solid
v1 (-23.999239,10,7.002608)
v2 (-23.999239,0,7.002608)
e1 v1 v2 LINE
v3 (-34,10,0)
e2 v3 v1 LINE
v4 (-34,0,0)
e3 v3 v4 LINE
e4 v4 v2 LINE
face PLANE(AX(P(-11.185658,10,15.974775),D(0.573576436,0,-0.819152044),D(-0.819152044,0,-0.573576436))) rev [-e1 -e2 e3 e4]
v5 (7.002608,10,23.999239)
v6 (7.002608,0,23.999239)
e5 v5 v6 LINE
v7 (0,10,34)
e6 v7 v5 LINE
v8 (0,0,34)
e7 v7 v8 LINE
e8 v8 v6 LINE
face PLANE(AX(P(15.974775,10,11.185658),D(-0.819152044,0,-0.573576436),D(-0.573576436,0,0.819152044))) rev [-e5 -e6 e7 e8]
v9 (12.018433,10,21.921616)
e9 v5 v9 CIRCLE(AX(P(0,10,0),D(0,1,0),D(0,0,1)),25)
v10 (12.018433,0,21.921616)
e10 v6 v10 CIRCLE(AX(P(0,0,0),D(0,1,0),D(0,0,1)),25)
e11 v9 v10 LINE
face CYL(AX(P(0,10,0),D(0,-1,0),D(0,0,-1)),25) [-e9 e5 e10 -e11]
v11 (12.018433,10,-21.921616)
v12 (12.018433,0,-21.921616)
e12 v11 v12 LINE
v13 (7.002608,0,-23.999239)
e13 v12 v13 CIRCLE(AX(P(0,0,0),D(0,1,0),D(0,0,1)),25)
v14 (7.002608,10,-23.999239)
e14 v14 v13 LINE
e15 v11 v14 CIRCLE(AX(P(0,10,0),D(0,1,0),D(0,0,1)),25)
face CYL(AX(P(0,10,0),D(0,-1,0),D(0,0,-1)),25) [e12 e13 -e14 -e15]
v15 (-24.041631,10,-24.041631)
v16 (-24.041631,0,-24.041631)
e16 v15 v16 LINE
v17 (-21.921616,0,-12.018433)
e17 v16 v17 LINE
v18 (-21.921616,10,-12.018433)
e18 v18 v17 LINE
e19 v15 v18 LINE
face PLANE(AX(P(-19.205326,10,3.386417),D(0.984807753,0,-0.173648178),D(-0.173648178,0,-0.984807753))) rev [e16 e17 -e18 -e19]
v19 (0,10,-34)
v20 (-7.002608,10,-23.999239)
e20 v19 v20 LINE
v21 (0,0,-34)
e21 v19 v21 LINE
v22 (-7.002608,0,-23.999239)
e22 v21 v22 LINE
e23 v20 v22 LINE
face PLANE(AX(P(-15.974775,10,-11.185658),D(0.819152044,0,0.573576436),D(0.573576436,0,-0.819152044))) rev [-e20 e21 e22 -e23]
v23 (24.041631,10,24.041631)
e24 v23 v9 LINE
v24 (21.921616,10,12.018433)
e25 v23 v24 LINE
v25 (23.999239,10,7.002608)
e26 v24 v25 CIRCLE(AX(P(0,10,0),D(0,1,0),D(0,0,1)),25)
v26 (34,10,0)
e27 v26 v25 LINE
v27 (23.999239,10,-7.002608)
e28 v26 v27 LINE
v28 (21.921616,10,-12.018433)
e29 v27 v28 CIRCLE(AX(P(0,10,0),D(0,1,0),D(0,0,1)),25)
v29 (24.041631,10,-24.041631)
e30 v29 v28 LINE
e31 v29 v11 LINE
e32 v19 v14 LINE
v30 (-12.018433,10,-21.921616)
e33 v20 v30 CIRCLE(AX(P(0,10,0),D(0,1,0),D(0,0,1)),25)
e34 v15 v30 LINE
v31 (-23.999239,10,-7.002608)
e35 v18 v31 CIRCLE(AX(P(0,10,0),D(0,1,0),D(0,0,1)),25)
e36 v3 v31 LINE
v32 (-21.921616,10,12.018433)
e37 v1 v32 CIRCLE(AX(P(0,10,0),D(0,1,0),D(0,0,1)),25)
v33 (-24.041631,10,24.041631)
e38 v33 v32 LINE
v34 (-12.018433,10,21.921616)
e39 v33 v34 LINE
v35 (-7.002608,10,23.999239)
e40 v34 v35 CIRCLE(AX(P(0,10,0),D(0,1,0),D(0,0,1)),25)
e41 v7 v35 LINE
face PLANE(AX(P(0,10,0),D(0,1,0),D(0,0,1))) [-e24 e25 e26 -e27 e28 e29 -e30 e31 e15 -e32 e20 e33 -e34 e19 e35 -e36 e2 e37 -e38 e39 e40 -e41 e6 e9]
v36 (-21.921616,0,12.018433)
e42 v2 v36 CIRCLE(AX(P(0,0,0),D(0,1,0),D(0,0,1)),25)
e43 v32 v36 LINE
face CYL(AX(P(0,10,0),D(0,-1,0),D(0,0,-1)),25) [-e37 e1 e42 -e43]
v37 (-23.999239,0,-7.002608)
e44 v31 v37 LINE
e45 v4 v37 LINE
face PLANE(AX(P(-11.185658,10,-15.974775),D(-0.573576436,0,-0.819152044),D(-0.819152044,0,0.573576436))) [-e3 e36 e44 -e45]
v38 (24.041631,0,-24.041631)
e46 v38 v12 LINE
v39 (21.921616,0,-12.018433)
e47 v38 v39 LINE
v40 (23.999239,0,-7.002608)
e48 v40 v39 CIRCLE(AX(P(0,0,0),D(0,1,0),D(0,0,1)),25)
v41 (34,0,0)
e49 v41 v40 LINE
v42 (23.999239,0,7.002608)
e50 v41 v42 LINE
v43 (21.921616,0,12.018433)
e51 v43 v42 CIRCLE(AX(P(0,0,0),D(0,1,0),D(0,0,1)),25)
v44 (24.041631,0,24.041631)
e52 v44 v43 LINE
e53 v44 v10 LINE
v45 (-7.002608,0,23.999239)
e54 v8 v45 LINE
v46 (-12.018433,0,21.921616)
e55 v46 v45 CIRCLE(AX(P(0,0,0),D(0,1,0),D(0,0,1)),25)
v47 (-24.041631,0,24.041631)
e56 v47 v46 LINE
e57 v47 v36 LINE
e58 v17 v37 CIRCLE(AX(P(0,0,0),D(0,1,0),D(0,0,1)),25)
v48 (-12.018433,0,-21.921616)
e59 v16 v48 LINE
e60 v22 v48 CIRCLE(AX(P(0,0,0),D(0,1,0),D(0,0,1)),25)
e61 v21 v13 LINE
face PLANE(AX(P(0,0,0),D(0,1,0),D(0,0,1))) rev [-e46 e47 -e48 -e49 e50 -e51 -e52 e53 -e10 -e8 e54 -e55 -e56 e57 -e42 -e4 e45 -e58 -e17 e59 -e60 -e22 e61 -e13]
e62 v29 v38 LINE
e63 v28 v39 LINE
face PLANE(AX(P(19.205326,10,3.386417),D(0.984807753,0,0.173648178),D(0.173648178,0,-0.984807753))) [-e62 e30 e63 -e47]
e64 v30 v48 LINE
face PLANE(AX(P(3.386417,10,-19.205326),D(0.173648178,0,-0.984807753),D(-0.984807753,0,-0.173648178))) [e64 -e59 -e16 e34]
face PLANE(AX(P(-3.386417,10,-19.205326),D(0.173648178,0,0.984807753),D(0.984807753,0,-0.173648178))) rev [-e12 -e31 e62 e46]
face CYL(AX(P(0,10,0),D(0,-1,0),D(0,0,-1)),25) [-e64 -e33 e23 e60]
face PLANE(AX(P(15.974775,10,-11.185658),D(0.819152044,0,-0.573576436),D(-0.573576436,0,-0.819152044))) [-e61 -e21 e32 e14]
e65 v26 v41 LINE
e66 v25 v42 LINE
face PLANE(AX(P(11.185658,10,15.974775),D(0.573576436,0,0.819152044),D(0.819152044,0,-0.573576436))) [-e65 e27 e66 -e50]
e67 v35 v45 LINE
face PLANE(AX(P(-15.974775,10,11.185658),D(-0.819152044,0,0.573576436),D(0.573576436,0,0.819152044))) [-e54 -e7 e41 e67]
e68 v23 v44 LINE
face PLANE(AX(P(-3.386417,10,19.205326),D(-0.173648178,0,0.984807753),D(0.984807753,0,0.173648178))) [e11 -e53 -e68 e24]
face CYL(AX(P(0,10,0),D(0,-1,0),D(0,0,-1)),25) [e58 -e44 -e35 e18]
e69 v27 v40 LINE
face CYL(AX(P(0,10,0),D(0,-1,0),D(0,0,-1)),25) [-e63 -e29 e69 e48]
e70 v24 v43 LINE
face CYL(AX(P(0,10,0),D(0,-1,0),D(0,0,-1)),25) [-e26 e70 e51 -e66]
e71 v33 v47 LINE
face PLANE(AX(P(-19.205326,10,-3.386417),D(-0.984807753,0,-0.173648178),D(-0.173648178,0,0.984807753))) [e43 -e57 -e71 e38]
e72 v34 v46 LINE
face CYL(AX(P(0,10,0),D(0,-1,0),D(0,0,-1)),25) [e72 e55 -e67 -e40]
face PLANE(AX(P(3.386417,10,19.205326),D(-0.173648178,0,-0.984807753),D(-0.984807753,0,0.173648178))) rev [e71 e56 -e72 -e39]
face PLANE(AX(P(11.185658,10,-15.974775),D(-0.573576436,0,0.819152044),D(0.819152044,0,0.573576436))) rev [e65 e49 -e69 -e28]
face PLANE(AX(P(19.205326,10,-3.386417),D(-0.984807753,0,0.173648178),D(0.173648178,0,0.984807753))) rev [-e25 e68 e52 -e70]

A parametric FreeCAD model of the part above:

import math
import FreeCAD as App
import Part
import Sketcher

V = App.Vector
Q = App.Units.Quantity

doc = App.newDocument("Part")
body = doc.addObject("PartDesign::Body", "Body")

# Sketch on XZ plane
sketch1 = body.newObject("Sketcher::SketchObject", "Sketch")
sketch1.AttachmentSupport = (doc.getObject("XZ_Plane"), [""])
sketch1.MapMode = "FlatFace"
sketch1.addGeometry(Part.LineSegment(V(7, -24, 0), V(0, -34, 0)), False)
sketch1.addGeometry(Part.LineSegment(V(0, -34, 0), V(-7, -24, 0)), False)
sketch1.addGeometry(Part.ArcOfCircle(Part.Circle(V(0, 0, 0), V(0, 0, 1), 25), math.radians(-118.73), math.radians(-106.27)), False)
sketch1.addGeometry(Part.LineSegment(V(-12, -22, 0), V(-24, -24, 0)), False)
sketch1.addGeometry(Part.LineSegment(V(-24, -24, 0), V(-22, -12, 0)), False)
sketch1.addGeometry(Part.ArcOfCircle(Part.Circle(V(0, 0, 0), V(0, 0, 1), 25), math.radians(-163.73), math.radians(-151.27)), False)
sketch1.addGeometry(Part.LineSegment(V(-24, -7, 0), V(-34, 0, 0)), False)
sketch1.addGeometry(Part.LineSegment(V(-34, 0, 0), V(-24, 7, 0)), False)
sketch1.addGeometry(Part.ArcOfCircle(Part.Circle(V(0, 0, 0), V(0, 0, 1), 25), math.radians(151.27), math.radians(163.73)), False)
sketch1.addGeometry(Part.LineSegment(V(-22, 12, 0), V(-24, 24, 0)), False)
sketch1.addGeometry(Part.LineSegment(V(-24, 24, 0), V(-12, 22, 0)), False)
sketch1.addGeometry(Part.ArcOfCircle(Part.Circle(V(0, 0, 0), V(0, 0, 1), 25), math.radians(106.27), math.radians(118.73)), False)
sketch1.addGeometry(Part.LineSegment(V(-7, 24, 0), V(0, 34, 0)), False)
sketch1.addGeometry(Part.LineSegment(V(0, 34, 0), V(7, 24, 0)), False)
sketch1.addGeometry(Part.ArcOfCircle(Part.Circle(V(0, 0, 0), V(0, 0, 1), 25), math.radians(61.27), math.radians(73.73)), False)
sketch1.addGeometry(Part.LineSegment(V(12, 22, 0), V(24, 24, 0)), False)
sketch1.addGeometry(Part.LineSegment(V(24, 24, 0), V(22, 12, 0)), False)
sketch1.addGeometry(Part.ArcOfCircle(Part.Circle(V(0, 0, 0), V(0, 0, 1), 25), math.radians(16.27), math.radians(28.73)), False)
sketch1.addGeometry(Part.LineSegment(V(24, 7, 0), V(34, 0, 0)), False)
sketch1.addGeometry(Part.LineSegment(V(34, 0, 0), V(24, -7, 0)), False)
sketch1.addGeometry(Part.ArcOfCircle(Part.Circle(V(0, 0, 0), V(0, 0, 1), 25), math.radians(-28.73), math.radians(-16.27)), False)
sketch1.addGeometry(Part.LineSegment(V(22, -12, 0), V(24, -24, 0)), False)
sketch1.addGeometry(Part.LineSegment(V(24, -24, 0), V(12, -22, 0)), False)
sketch1.addGeometry(Part.ArcOfCircle(Part.Circle(V(0, 0, 0), V(0, 0, 1), 25), math.radians(-73.73), math.radians(-61.27)), False)
sketch1.addConstraint(Sketcher.Constraint("Coincident", 0, 2, 1, 1))
sketch1.addConstraint(Sketcher.Constraint("Coincident", 1, 2, 2, 2))
sketch1.addConstraint(Sketcher.Constraint("Coincident", 2, 1, 3, 1))
sketch1.addConstraint(Sketcher.Constraint("Coincident", 3, 2, 4, 1))
sketch1.addConstraint(Sketcher.Constraint("Coincident", 4, 2, 5, 2))
sketch1.addConstraint(Sketcher.Constraint("Coincident", 5, 1, 6, 1))
sketch1.addConstraint(Sketcher.Constraint("Coincident", 6, 2, 7, 1))
sketch1.addConstraint(Sketcher.Constraint("Coincident", 7, 2, 8, 2))
sketch1.addConstraint(Sketcher.Constraint("Coincident", 8, 1, 9, 1))
sketch1.addConstraint(Sketcher.Constraint("Coincident", 9, 2, 10, 1))
sketch1.addConstraint(Sketcher.Constraint("Coincident", 10, 2, 11, 2))
sketch1.addConstraint(Sketcher.Constraint("Coincident", 11, 1, 12, 1))
sketch1.addConstraint(Sketcher.Constraint("Coincident", 12, 2, 13, 1))
sketch1.addConstraint(Sketcher.Constraint("Coincident", 13, 2, 14, 2))
sketch1.addConstraint(Sketcher.Constraint("Coincident", 14, 1, 15, 1))
sketch1.addConstraint(Sketcher.Constraint("Coincident", 15, 2, 16, 1))
sketch1.addConstraint(Sketcher.Constraint("Coincident", 16, 2, 17, 2))
sketch1.addConstraint(Sketcher.Constraint("Coincident", 17, 1, 18, 1))
sketch1.addConstraint(Sketcher.Constraint("Coincident", 18, 2, 19, 1))
sketch1.addConstraint(Sketcher.Constraint("Coincident", 19, 2, 20, 2))
sketch1.addConstraint(Sketcher.Constraint("Coincident", 20, 1, 21, 1))
sketch1.addConstraint(Sketcher.Constraint("Coincident", 21, 2, 22, 1))
sketch1.addConstraint(Sketcher.Constraint("Coincident", 22, 2, 23, 2))
sketch1.addConstraint(Sketcher.Constraint("Coincident", 23, 1, 0, 1))
sketch1.addConstraint(Sketcher.Constraint("Coincident", 2, 3, -1, 1))
sketch1.addConstraint(Sketcher.Constraint("Coincident", 5, 3, -1, 1))
sketch1.addConstraint(Sketcher.Constraint("Coincident", 8, 3, -1, 1))
sketch1.addConstraint(Sketcher.Constraint("Coincident", 11, 3, -1, 1))
sketch1.addConstraint(Sketcher.Constraint("Coincident", 14, 3, -1, 1))
sketch1.addConstraint(Sketcher.Constraint("Coincident", 17, 3, -1, 1))
sketch1.addConstraint(Sketcher.Constraint("Coincident", 20, 3, -1, 1))
sketch1.addConstraint(Sketcher.Constraint("Coincident", 23, 3, -1, 1))
sketch1.addConstraint(Sketcher.Constraint("Equal", 2, 5))
sketch1.addConstraint(Sketcher.Constraint("Equal", 5, 8))
sketch1.addConstraint(Sketcher.Constraint("Equal", 8, 11))
sketch1.addConstraint(Sketcher.Constraint("Equal", 11, 14))
sketch1.addConstraint(Sketcher.Constraint("Equal", 14, 17))
sketch1.addConstraint(Sketcher.Constraint("Equal", 17, 20))
sketch1.addConstraint(Sketcher.Constraint("Equal", 20, 23))
sketch1.addConstraint(Sketcher.Constraint("Symmetric", 0, 2, 12, 2, -1, 1))
sketch1.addConstraint(Sketcher.Constraint("Symmetric", 3, 2, 15, 2, -1, 1))
sketch1.addConstraint(Sketcher.Constraint("Symmetric", 6, 2, 18, 2, -1, 1))
sketch1.addConstraint(Sketcher.Constraint("Symmetric", 9, 2, 21, 2, -1, 1))
sketch1.addConstraint(Sketcher.Constraint("Symmetric", 9, 2, 15, 2, -2))
sketch1.addConstraint(Sketcher.Constraint("PointOnObject", 0, 2, -2))
sketch1.addConstraint(Sketcher.Constraint("PointOnObject", 6, 2, -1))
sketch1.addConstraint(Sketcher.Constraint("Perpendicular", 0, 6))
sketch1.addConstraint(Sketcher.Constraint("Perpendicular", 1, 7))
sketch1.addConstraint(Sketcher.Constraint("Perpendicular", 3, 9))
sketch1.addConstraint(Sketcher.Constraint("Perpendicular", 4, 10))
sketch1.addConstraint(Sketcher.Constraint("Perpendicular", 6, 12))
sketch1.addConstraint(Sketcher.Constraint("Perpendicular", 7, 13))
sketch1.addConstraint(Sketcher.Constraint("Perpendicular", 9, 15))
sketch1.addConstraint(Sketcher.Constraint("Perpendicular", 10, 16))
sketch1.addConstraint(Sketcher.Constraint("Perpendicular", 12, 18))
sketch1.addConstraint(Sketcher.Constraint("Perpendicular", 13, 19))
sketch1.addConstraint(Sketcher.Constraint("Perpendicular", 15, 21))
sketch1.addConstraint(Sketcher.Constraint("Perpendicular", 16, 22))
sketch1.addConstraint(Sketcher.Constraint("Horizontal", 11, 1, 13, 2))
sketch1.addConstraint(Sketcher.Constraint("Horizontal", 10, 2, 14, 1))
sketch1.addConstraint(Sketcher.Constraint("Equal", 1, 3))
sketch1.addConstraint(Sketcher.Constraint("Equal", 3, 4))
sketch1.addConstraint(Sketcher.Constraint("Equal", 4, 6))
sketch1.addConstraint(Sketcher.Constraint("Radius", 2, Q("25 mm")))
sketch1.addConstraint(Sketcher.Constraint("Angle", 0, Q("-125 deg")))
sketch1.addConstraint(Sketcher.Constraint("Angle", 3, Q("-170 deg")))
sketch1.addConstraint(Sketcher.Constraint("DistanceY", 0, 2, -1, 1, Q("34 mm")))
pad1 = body.newObject("PartDesign::Pad", "Pad")
pad1.Profile = sketch1
pad1.Length = 10
pad1.Reversed = True

doc.recompute()
